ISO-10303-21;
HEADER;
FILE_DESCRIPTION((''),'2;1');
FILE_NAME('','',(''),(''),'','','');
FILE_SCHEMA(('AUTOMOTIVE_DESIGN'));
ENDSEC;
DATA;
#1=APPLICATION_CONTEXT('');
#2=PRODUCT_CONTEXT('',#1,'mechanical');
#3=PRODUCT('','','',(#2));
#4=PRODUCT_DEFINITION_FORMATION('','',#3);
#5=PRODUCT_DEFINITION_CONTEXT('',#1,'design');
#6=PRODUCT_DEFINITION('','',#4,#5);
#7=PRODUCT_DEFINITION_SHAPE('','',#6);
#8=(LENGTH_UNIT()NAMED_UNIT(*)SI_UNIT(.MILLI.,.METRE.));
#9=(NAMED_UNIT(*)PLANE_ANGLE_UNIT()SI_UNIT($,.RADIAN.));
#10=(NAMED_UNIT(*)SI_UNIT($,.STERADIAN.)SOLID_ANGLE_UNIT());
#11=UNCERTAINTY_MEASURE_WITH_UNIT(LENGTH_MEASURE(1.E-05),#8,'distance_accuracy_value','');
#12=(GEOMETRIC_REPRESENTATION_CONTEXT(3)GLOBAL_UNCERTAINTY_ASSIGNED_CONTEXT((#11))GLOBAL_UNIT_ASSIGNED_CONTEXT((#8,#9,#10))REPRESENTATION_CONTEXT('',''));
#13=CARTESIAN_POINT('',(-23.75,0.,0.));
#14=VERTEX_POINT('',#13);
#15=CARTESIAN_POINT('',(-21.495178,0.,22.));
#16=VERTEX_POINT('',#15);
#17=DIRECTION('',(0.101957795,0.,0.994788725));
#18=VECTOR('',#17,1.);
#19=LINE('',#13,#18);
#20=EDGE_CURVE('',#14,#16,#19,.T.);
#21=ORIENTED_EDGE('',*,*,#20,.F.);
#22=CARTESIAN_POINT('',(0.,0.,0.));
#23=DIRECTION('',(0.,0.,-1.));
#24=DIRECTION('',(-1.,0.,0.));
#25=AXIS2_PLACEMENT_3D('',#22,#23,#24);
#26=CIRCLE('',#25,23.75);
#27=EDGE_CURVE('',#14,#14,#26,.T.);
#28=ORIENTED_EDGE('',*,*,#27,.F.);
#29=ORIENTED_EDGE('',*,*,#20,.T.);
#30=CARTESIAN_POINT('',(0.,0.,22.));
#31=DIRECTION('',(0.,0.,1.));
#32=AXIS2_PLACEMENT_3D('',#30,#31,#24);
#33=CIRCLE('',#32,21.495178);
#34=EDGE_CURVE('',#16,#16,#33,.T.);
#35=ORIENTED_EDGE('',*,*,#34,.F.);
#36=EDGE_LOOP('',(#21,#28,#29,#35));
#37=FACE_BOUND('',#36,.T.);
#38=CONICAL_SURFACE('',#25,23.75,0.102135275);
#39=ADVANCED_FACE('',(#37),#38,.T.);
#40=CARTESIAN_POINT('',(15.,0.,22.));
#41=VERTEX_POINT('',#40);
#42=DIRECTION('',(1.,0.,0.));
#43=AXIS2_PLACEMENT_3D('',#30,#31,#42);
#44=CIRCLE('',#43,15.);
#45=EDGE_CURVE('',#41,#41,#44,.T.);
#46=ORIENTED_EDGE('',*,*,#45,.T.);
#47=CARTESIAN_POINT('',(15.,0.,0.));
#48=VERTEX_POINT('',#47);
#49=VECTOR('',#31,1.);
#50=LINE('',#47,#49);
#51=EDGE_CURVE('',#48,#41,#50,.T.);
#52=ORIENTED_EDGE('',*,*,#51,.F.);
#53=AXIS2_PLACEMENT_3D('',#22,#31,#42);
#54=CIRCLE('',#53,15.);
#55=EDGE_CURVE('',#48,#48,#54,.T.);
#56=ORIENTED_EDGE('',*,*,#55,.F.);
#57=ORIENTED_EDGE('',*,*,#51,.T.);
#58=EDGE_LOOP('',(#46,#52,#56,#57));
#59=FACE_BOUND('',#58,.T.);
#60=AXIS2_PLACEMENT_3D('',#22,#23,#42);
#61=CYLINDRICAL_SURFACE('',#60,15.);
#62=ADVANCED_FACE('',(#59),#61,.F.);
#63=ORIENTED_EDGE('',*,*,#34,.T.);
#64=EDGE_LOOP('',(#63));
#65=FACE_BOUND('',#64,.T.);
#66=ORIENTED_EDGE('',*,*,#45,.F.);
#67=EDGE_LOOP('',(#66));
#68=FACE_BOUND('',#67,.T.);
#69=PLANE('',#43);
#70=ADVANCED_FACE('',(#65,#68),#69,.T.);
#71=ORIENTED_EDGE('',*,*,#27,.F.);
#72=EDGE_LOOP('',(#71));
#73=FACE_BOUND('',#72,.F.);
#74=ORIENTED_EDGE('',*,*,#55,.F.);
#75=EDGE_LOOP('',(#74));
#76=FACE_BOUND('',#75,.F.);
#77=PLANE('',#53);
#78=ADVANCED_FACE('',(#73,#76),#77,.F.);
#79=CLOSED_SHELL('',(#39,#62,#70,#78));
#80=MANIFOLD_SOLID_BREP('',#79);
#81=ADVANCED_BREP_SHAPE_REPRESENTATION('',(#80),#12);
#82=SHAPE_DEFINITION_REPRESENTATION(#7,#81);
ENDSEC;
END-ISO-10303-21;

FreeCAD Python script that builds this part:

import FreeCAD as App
import Part
import Sketcher

V = App.Vector

doc = App.newDocument("Part")
body = doc.addObject("PartDesign::Body", "Body")

# Sketch on XY plane
sketch1 = doc.addObject("Sketcher::SketchObject", "Sketch")
body.addObject(sketch1)
sketch1.AttachmentSupport = (doc.XY_Plane, [""])
sketch1.MapMode = "FlatFace"
sketch1.addGeometry(Part.Circle(V(0, 0, 0), V(0, 0, 1), 23.75), False)
sketch1.addGeometry(Part.Circle(V(0, 0, 0), V(0, 0, 1), 15), False)
sketch1.addConstraint(Sketcher.Constraint("Coincident", 0, 3, -1, 1))
sketch1.addConstraint(Sketcher.Constraint("Coincident", 1, 3, -1, 1))
sketch1.addConstraint(Sketcher.Constraint("Diameter", 1, 30.0))
sketch1.addConstraint(Sketcher.Constraint("Diameter", 0, 47.5))
pad1 = doc.addObject("PartDesign::Pad", "Pad")
body.addObject(pad1)
pad1.Profile = sketch1
pad1.Length = 22

# Sketch on XZ plane
sketch2 = doc.addObject("Sketcher::SketchObject", "Sketch001")
body.addObject(sketch2)
sketch2.AttachmentSupport = (doc.XZ_Plane, [""])
sketch2.MapMode = "FlatFace"
sketch2.addGeometry(Part.LineSegment(V(-23.75, 28.316489, 0), V(-23.75, 0, 0)), False)
sketch2.addGeometry(Part.LineSegment(V(-23.75, 0, 0), V(-20.847789, 28.316489, 0)), False)
sketch2.addGeometry(Part.LineSegment(V(-20.847789, 28.316489, 0), V(-23.75, 28.316489, 0)), False)
sketch2.addConstraint(Sketcher.Constraint("Coincident", 0, 2, 1, 1))
sketch2.addConstraint(Sketcher.Constraint("Coincident", 1, 2, 2, 1))
sketch2.addConstraint(Sketcher.Constraint("Coincident", 2, 2, 0, 1))
sketch2.addConstraint(Sketcher.Constraint("Vertical", 0))
sketch2.addConstraint(Sketcher.Constraint("Horizontal", 2))
sketch2.addConstraint(Sketcher.Constraint("PointOnObject", 0, 2, -1))
sketch2.addConstraint(Sketcher.Constraint("DistanceX", 0, 2, -1, 1, 23.75))
sketch2.addConstraint(Sketcher.Constraint("DistanceX", 2, 2, 2, 1, 2.902211))
sketch2.addConstraint(Sketcher.Constraint("DistanceY", 0, 2, 0, 1, 28.316489))
groove = doc.addObject("PartDesign::Groove", "Groove")
body.addObject(groove)
groove.Profile = sketch2
groove.ReferenceAxis = (sketch2, ["V_Axis"])
groove.Angle = 360

doc.recompute()
